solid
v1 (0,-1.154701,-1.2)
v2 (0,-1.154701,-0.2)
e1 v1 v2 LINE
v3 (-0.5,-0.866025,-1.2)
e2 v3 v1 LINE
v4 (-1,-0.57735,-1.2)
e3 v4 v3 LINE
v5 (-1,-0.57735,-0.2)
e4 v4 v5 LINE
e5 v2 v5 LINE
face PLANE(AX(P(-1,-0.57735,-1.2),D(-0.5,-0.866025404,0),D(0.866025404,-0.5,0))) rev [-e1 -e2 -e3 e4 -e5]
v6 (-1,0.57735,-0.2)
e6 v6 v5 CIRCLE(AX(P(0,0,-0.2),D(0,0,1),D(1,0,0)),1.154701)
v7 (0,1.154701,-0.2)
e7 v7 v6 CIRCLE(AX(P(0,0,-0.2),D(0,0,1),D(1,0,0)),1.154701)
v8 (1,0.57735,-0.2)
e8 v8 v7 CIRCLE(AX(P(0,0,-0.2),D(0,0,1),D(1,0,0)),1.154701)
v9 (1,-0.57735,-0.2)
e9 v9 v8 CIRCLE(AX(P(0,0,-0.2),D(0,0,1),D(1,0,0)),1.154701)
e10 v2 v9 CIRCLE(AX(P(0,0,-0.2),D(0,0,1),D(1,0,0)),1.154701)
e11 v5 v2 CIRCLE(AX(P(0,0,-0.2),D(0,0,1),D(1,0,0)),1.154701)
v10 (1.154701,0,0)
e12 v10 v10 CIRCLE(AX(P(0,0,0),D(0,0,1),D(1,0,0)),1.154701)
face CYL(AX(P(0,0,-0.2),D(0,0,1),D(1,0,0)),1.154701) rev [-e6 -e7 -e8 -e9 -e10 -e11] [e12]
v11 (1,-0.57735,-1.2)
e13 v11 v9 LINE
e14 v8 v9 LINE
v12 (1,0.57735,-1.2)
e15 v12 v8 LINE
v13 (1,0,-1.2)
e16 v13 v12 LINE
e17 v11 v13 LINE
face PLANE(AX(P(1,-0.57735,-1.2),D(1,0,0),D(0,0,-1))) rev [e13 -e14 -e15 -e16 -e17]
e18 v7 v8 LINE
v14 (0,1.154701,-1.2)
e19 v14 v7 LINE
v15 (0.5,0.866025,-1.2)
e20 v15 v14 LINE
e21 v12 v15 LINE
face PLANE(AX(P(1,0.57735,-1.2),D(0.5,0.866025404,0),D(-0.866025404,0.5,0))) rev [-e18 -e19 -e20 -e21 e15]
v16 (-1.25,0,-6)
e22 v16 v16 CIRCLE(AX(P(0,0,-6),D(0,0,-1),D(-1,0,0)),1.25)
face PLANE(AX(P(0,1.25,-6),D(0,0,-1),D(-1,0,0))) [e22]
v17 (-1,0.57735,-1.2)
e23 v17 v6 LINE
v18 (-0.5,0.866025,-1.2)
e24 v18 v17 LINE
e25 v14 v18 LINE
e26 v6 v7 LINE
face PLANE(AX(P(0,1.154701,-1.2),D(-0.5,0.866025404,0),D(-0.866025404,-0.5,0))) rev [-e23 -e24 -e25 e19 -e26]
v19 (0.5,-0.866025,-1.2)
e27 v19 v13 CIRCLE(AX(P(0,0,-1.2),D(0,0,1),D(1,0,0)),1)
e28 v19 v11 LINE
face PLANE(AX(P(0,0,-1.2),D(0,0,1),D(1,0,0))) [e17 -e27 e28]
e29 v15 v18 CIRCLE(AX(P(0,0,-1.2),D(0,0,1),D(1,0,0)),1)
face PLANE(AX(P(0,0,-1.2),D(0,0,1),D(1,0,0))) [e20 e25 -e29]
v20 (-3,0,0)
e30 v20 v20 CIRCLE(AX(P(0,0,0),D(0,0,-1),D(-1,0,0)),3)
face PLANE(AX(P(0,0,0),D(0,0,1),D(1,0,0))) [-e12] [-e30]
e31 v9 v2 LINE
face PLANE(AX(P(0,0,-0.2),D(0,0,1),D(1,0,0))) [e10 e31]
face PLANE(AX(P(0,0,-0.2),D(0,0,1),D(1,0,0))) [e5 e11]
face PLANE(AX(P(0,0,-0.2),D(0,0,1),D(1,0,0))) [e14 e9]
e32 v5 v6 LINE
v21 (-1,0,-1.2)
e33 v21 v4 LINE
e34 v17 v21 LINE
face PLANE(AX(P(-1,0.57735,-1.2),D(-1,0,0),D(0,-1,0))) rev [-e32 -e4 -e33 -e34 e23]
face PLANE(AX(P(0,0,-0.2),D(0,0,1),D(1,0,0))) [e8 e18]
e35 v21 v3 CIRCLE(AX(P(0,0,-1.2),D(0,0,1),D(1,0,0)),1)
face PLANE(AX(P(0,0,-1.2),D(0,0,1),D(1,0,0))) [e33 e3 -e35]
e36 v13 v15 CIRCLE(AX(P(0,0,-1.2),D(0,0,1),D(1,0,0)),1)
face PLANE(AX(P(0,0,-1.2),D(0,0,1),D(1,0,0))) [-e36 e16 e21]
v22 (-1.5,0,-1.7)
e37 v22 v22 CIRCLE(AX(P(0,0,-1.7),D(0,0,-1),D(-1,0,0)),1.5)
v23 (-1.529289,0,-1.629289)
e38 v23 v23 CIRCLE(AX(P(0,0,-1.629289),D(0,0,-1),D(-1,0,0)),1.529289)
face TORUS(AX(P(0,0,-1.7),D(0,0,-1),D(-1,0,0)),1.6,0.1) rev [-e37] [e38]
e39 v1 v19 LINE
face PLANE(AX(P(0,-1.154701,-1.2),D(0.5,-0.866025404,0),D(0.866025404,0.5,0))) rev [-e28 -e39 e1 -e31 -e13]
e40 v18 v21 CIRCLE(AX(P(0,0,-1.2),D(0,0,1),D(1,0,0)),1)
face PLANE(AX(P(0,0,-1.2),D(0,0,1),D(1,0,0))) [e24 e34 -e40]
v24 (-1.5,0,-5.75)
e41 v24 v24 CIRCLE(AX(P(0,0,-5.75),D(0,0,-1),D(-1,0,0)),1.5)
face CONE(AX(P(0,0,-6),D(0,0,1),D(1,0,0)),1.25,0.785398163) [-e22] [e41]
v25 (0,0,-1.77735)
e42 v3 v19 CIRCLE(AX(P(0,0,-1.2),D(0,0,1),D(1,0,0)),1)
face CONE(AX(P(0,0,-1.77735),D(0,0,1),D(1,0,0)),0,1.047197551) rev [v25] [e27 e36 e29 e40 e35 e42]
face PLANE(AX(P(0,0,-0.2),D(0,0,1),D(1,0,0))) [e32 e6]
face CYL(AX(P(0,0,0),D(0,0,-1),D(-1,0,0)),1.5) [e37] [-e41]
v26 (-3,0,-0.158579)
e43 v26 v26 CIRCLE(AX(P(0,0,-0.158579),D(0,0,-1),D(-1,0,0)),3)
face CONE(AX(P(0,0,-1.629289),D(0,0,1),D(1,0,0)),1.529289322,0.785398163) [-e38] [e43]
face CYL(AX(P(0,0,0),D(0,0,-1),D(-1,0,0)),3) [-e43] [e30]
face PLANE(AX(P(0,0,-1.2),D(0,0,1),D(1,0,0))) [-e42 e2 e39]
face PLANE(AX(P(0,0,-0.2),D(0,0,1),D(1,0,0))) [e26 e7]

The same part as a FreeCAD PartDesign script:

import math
import FreeCAD as App
import Part
import Sketcher
from FreeCAD import Vector
Q = App.Units.Quantity

doc = App.newDocument("Part")
params = doc.addObject("Spreadsheet::Sheet", "Params")
for row, (alias, value) in enumerate([
    ("sketch1_radius", "0.1 mm"),
    ("sketch1_width", "3 mm"),
    ("sketch1_height", "6 mm"),
    ("sketch1_width2", "1.25 mm"),
    ("sketch1_height2", "4.05 mm"),
    ("revolution_angle", "360 deg"),
    ("pocket1_length", "1.2 mm"),
    ("sketch3_width", "1 mm"),
    ("groove_angle", "360 deg"),
    ("pocket2_length", "0.2 mm"),
], start=1):
    params.set(f"A{row}", alias)
    params.set(f"B{row}", "=" + value)
    params.setAlias(f"B{row}", alias)

body = doc.addObject("PartDesign::Body", "Body")

sketch1 = body.newObject("Sketcher::SketchObject", "Sketch")
sketch1.AttachmentSupport = (doc.getObject("YZ_Plane"), [""])
sketch1.MapMode = "FlatFace"
sketch1.addGeometry(Part.LineSegment(Vector(3, 0, 0), Vector(0, 0, 0)), False)
sketch1.addGeometry(Part.LineSegment(Vector(0, 0, 0), Vector(0, -6, 0)), False)
sketch1.addGeometry(Part.LineSegment(Vector(0, -6, 0), Vector(1.25, -6, 0)), False)
sketch1.addGeometry(Part.LineSegment(Vector(1.25, -6, 0), Vector(1.5, -5.75, 0)), False)
sketch1.addGeometry(Part.LineSegment(Vector(1.5, -5.75, 0), Vector(1.5, -1.7, 0)), False)
sketch1.addGeometry(Part.ArcOfCircle(Part.Circle(Vector(1.6, -1.7, 0), Vector(0, 0, 1), 0.1), math.radians(135.000001), math.radians(179.999999)), False)
sketch1.addGeometry(Part.LineSegment(Vector(1.529289, -1.629289, 0), Vector(3, -0.158579, 0)), False)
sketch1.addGeometry(Part.LineSegment(Vector(3, -0.158579, 0), Vector(3, 0, 0)), False)
sketch1.addConstraint(Sketcher.Constraint("Coincident", 0, 2, 1, 1))
sketch1.addConstraint(Sketcher.Constraint("Coincident", 1, 2, 2, 1))
sketch1.addConstraint(Sketcher.Constraint("Coincident", 2, 2, 3, 1))
sketch1.addConstraint(Sketcher.Constraint("Coincident", 3, 2, 4, 1))
sketch1.addConstraint(Sketcher.Constraint("Tangent", 4, 2, 5, 2))
sketch1.addConstraint(Sketcher.Constraint("Tangent", 5, 1, 6, 1))
sketch1.addConstraint(Sketcher.Constraint("Coincident", 6, 2, 7, 1))
sketch1.addConstraint(Sketcher.Constraint("Coincident", 7, 2, 0, 1))
sketch1.addConstraint(Sketcher.Constraint("Horizontal", 0))
sketch1.addConstraint(Sketcher.Constraint("Vertical", 1))
sketch1.addConstraint(Sketcher.Constraint("Horizontal", 2))
sketch1.addConstraint(Sketcher.Constraint("Vertical", 4))
sketch1.addConstraint(Sketcher.Constraint("Vertical", 7))
sketch1.addConstraint(Sketcher.Constraint("Coincident", 0, 2, -1, 1))
sketch1.addConstraint(Sketcher.Constraint("Parallel", 3, 6))
sketch1.addConstraint(Sketcher.Constraint("Radius", 5, 0.1))
sketch1.addConstraint(Sketcher.Constraint("DistanceX", 0, 2, 0, 1, 3.0))
sketch1.addConstraint(Sketcher.Constraint("DistanceY", 1, 2, 1, 1, 6.0))
sketch1.addConstraint(Sketcher.Constraint("Angle", 3, Q("45 deg")))
sketch1.addConstraint(Sketcher.Constraint("DistanceX", 2, 1, 2, 2, 1.25))
sketch1.addConstraint(Sketcher.Constraint("DistanceY", 4, 1, 4, 2, 4.05))
sketch1.addConstraint(Sketcher.Constraint("DistanceX", -1, 1, 5, 3, 1.6))
sketch1.setExpression("Constraints[15]", "Params.sketch1_radius")
sketch1.setExpression("Constraints[16]", "Params.sketch1_width")
sketch1.setExpression("Constraints[17]", "Params.sketch1_height")
sketch1.setExpression("Constraints[19]", "Params.sketch1_width2")
sketch1.setExpression("Constraints[20]", "Params.sketch1_height2")
revolution = body.newObject("PartDesign::Revolution", "Revolution")
revolution.Profile = sketch1
revolution.ReferenceAxis = (sketch1, ["V_Axis"])
revolution.setExpression("Angle", "Params.revolution_angle")

sketch2 = body.newObject("Sketcher::SketchObject", "Sketch001")
sketch2.AttachmentSupport = (doc.getObject("XY_Plane"), [""])
sketch2.MapMode = "FlatFace"
sketch2.addGeometry(Part.LineSegment(Vector(0, 1.154701, 0), Vector(-1, 0.57735, 0)), False)
sketch2.addGeometry(Part.LineSegment(Vector(-1, 0.57735, 0), Vector(-1, -0.57735, 0)), False)
sketch2.addGeometry(Part.LineSegment(Vector(-1, -0.57735, 0), Vector(0, -1.154701, 0)), False)
sketch2.addGeometry(Part.LineSegment(Vector(0, -1.154701, 0), Vector(1, -0.57735, 0)), False)
sketch2.addGeometry(Part.LineSegment(Vector(1, -0.57735, 0), Vector(1, 0.57735, 0)), False)
sketch2.addGeometry(Part.LineSegment(Vector(1, 0.57735, 0), Vector(0, 1.154701, 0)), False)
sketch2.addConstraint(Sketcher.Constraint("Coincident", 0, 2, 1, 1))
sketch2.addConstraint(Sketcher.Constraint("Coincident", 1, 2, 2, 1))
sketch2.addConstraint(Sketcher.Constraint("Coincident", 2, 2, 3, 1))
sketch2.addConstraint(Sketcher.Constraint("Coincident", 3, 2, 4, 1))
sketch2.addConstraint(Sketcher.Constraint("Coincident", 4, 2, 5, 1))
sketch2.addConstraint(Sketcher.Constraint("Coincident", 5, 2, 0, 1))
sketch2.addConstraint(Sketcher.Constraint("Vertical", 1))
sketch2.addConstraint(Sketcher.Constraint("Vertical", 4))
sketch2.addConstraint(Sketcher.Constraint("Symmetric", 0, 2, 3, 2, -1, 1))
sketch2.addConstraint(Sketcher.Constraint("Symmetric", 2, 2, 5, 2, -1, 1))
sketch2.addConstraint(Sketcher.Constraint("PointOnObject", 2, 2, -2))
sketch2.addConstraint(Sketcher.Constraint("Parallel", 2, 5))
sketch2.addConstraint(Sketcher.Constraint("Horizontal", 1, 2, 3, 2))
sketch2.addConstraint(Sketcher.Constraint("Angle", 0, Q("-150 deg")))
sketch2.addConstraint(Sketcher.Constraint("DistanceX", 0, 2, -1, 1, 1.0))
sketch2.addConstraint(Sketcher.Constraint("DistanceY", 1, 2, 1, 1, 1.154701))
pocket1 = body.newObject("PartDesign::Pocket", "Pocket")
pocket1.Profile = sketch2
pocket1.setExpression("Length", "Params.pocket1_length")

sketch3 = body.newObject("Sketcher::SketchObject", "Sketch002")
sketch3.AttachmentSupport = (doc.getObject("YZ_Plane"), [""])
sketch3.MapMode = "FlatFace"
sketch3.addGeometry(Part.LineSegment(Vector(1, -1.2, 0), Vector(0, -1.2, 0)), False)
sketch3.addGeometry(Part.LineSegment(Vector(0, -1.2, 0), Vector(0, -1.77735, 0)), False)
sketch3.addGeometry(Part.LineSegment(Vector(0, -1.77735, 0), Vector(1, -1.2, 0)), False)
sketch3.addConstraint(Sketcher.Constraint("Coincident", 0, 2, 1, 1))
sketch3.addConstraint(Sketcher.Constraint("Coincident", 1, 2, 2, 1))
sketch3.addConstraint(Sketcher.Constraint("Coincident", 2, 2, 0, 1))
sketch3.addConstraint(Sketcher.Constraint("Horizontal", 0))
sketch3.addConstraint(Sketcher.Constraint("Vertical", 1))
sketch3.addConstraint(Sketcher.Constraint("PointOnObject", 0, 2, -2))
sketch3.addConstraint(Sketcher.Constraint("DistanceX", 0, 2, 0, 1, 1.0))
sketch3.addConstraint(Sketcher.Constraint("Angle", 2, Q("30 deg")))
sketch3.addConstraint(Sketcher.Constraint("DistanceY", 0, 2, -1, 1, 1.2))
sketch3.setExpression("Constraints[6]", "Params.sketch3_width")
groove = body.newObject("PartDesign::Groove", "Groove")
groove.Profile = sketch3
groove.ReferenceAxis = (sketch3, ["V_Axis"])
groove.setExpression("Angle", "Params.groove_angle")

sketch4 = body.newObject("Sketcher::SketchObject", "Sketch003")
sketch4.AttachmentSupport = (doc.getObject("XY_Plane"), [""])
sketch4.MapMode = "FlatFace"
sketch4.addGeometry(Part.Circle(Vector(0, 0, 0), Vector(0, 0, 1), 1.154701), False)
sketch4.addConstraint(Sketcher.Constraint("Coincident", 0, 3, -1, 1))
sketch4.addConstraint(Sketcher.Constraint("Diameter", 0, 2.309401))
pocket2 = body.newObject("PartDesign::Pocket", "Pocket001")
pocket2.Profile = sketch4
pocket2.setExpression("Length", "Params.pocket2_length")

doc.recompute()
